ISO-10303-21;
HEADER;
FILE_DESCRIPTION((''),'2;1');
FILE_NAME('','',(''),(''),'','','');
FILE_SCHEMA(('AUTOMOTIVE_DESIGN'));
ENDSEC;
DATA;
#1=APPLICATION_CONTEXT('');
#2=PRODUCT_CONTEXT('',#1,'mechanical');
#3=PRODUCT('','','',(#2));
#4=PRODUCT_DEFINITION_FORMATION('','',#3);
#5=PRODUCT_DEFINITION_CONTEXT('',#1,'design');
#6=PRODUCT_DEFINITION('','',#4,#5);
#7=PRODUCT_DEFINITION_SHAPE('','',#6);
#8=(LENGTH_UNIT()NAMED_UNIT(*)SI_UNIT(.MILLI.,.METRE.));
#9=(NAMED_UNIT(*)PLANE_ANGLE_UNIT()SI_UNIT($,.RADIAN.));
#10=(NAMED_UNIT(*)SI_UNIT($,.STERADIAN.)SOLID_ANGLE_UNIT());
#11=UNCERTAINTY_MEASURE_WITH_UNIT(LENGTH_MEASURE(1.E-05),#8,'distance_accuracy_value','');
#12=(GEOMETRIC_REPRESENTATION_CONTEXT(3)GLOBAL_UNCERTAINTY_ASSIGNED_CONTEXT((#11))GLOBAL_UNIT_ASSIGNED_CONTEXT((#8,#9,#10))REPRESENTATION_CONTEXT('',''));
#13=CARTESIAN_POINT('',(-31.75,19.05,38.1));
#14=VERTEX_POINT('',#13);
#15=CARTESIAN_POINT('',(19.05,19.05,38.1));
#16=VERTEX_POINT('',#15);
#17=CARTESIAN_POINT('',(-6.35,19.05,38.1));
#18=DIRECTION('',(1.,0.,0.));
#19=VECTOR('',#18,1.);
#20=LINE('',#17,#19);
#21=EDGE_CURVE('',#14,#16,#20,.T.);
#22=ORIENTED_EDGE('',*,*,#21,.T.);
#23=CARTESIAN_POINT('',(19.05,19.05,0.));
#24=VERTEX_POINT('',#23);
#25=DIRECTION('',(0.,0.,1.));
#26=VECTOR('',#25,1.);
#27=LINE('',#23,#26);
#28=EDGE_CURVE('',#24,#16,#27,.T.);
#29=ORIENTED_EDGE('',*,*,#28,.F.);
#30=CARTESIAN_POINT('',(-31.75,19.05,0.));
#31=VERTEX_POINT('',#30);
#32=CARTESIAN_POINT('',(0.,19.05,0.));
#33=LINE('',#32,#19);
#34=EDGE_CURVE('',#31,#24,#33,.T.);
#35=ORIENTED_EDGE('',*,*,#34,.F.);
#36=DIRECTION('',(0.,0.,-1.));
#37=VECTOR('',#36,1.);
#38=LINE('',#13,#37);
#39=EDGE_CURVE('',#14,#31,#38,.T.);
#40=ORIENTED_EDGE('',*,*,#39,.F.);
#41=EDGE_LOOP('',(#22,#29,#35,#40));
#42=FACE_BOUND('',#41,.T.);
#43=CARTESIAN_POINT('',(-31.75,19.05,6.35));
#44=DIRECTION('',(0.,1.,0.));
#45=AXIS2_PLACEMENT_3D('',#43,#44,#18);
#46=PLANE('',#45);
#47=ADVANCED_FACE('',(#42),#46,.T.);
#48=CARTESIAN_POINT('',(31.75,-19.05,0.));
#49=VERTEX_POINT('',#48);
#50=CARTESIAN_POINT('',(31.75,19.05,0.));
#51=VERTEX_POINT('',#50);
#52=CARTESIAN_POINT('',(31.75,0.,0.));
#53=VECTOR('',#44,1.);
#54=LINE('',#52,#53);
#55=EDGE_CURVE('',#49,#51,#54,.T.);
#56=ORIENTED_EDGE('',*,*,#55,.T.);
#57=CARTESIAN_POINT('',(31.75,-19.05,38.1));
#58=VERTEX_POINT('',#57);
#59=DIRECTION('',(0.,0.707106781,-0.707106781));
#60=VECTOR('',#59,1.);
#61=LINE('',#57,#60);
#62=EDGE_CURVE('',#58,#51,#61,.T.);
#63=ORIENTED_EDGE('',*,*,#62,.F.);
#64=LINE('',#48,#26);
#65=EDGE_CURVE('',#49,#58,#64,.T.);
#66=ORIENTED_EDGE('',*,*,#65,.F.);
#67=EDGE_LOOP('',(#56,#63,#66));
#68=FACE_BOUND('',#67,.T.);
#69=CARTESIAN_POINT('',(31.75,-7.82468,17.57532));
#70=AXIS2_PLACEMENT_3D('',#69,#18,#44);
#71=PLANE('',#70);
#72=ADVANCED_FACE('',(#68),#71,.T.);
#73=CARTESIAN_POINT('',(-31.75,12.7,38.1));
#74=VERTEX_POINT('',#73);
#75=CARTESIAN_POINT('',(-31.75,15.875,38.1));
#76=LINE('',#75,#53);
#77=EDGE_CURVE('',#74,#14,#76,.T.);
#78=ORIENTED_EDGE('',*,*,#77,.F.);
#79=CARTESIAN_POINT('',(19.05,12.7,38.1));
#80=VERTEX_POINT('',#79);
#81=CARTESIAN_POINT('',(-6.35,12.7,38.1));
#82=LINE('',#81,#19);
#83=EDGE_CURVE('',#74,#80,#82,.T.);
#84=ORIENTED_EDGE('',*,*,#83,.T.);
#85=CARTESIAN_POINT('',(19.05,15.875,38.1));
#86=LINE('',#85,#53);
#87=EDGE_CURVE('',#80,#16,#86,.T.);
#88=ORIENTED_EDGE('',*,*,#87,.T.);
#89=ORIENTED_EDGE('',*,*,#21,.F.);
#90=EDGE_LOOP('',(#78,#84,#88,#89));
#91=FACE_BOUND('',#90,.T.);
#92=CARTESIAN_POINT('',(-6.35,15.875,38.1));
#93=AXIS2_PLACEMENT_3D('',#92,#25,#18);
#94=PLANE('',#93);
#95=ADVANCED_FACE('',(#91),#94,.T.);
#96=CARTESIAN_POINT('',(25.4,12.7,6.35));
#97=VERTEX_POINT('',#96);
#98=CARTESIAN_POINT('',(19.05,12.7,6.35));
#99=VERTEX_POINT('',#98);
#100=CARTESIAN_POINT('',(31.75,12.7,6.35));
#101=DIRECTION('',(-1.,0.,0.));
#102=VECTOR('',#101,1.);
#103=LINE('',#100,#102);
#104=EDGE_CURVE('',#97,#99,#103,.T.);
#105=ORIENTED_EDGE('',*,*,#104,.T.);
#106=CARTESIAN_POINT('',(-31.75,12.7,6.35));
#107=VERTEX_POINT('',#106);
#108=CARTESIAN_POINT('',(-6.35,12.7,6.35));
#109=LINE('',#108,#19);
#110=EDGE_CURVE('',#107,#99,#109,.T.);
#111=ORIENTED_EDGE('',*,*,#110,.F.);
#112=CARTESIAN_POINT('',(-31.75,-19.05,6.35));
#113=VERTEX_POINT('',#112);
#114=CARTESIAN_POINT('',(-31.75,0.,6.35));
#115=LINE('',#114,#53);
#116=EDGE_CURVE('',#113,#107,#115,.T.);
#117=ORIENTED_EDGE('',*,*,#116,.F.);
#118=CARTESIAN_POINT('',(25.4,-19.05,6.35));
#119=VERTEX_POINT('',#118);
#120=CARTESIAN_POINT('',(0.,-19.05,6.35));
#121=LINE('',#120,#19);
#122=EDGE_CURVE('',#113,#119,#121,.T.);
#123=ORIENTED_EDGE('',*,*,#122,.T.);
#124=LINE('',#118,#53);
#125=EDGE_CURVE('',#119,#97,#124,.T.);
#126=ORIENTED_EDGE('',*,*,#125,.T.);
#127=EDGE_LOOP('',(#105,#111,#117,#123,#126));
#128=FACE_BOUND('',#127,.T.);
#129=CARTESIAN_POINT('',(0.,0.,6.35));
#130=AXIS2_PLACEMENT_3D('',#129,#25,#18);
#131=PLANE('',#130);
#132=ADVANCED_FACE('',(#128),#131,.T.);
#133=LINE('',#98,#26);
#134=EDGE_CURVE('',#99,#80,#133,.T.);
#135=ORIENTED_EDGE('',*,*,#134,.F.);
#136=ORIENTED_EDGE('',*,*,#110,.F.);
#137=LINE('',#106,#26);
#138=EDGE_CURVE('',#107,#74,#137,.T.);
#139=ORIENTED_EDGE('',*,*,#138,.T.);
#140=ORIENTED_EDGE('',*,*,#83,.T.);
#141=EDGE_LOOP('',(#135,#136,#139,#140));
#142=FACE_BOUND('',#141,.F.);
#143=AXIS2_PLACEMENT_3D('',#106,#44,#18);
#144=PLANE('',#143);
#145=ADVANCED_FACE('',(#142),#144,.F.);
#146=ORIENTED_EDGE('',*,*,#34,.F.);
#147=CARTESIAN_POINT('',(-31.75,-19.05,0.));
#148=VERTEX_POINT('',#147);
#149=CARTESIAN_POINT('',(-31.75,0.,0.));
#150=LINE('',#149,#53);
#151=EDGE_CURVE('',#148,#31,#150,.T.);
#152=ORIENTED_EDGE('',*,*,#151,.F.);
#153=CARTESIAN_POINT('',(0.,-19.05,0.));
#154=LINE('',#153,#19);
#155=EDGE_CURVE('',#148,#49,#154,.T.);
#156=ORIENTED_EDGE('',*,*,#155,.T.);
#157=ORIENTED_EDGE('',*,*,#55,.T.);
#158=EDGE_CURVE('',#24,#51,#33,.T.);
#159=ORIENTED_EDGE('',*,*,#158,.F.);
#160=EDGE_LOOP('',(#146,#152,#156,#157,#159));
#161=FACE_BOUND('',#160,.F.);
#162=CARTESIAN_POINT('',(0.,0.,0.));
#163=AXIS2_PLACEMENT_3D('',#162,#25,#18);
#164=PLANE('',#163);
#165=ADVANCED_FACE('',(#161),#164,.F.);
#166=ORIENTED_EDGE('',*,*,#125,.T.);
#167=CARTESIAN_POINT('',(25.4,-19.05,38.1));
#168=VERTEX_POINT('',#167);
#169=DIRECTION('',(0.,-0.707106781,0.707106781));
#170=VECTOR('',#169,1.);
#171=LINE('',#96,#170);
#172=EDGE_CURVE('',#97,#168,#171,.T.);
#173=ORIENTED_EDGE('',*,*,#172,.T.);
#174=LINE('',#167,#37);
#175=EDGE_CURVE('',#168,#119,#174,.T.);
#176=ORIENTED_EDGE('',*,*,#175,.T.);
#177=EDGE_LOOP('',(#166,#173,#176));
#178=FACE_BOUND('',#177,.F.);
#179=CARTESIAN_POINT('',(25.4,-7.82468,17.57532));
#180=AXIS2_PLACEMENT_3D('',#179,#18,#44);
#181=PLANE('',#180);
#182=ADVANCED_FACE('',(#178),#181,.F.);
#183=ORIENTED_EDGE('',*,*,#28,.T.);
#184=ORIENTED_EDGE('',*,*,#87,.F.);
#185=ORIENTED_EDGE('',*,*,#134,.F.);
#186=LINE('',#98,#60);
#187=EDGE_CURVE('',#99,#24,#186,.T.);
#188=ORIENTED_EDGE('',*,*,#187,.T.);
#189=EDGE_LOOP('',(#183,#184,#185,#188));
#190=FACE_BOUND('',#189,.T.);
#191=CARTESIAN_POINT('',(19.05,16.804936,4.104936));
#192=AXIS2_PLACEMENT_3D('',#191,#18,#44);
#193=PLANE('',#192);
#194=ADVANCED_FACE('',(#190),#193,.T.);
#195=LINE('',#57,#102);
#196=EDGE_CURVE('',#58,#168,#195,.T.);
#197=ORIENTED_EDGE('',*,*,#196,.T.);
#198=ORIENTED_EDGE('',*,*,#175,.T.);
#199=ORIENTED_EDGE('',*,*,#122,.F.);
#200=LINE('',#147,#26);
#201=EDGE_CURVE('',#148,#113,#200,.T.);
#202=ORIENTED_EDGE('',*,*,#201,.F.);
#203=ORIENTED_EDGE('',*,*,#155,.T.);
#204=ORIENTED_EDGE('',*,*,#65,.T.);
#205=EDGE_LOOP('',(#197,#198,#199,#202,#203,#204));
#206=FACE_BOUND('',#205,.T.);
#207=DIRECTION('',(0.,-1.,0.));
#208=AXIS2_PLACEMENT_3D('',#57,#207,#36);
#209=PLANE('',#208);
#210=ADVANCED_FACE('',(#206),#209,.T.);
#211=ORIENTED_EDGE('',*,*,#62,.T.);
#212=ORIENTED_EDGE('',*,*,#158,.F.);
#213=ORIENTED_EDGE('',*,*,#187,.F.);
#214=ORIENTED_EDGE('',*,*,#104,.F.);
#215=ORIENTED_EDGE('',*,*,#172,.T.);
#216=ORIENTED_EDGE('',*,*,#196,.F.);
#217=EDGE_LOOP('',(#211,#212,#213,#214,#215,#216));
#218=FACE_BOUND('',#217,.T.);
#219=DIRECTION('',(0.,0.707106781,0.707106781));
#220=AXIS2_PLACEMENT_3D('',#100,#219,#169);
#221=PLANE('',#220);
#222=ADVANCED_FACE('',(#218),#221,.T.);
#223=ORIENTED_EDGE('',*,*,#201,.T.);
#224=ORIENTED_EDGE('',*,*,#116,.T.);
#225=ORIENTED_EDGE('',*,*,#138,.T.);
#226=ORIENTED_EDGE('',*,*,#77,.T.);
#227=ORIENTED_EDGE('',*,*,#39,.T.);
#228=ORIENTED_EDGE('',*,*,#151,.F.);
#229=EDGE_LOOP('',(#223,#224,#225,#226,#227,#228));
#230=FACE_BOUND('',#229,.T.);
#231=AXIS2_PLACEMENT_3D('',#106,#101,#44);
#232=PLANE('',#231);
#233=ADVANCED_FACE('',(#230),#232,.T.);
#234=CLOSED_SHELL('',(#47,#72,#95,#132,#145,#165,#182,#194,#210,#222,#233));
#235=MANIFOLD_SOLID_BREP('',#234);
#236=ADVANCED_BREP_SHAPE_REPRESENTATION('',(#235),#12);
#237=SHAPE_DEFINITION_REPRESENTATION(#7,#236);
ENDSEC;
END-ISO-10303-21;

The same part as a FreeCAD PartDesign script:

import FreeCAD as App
import Part
import Sketcher

V = App.Vector
Q = App.Units.Quantity

doc = App.newDocument("Part")
body = doc.addObject("PartDesign::Body", "Body")

sketch1 = body.newObject("Sketcher::SketchObject", "Sketch")
sketch1.AttachmentSupport = (doc.getObject("XY_Plane"), [""])
sketch1.MapMode = "FlatFace"
sketch1.addGeometry([
    Part.LineSegment(V(-31.75, 19.05, 0), V(-31.75, -19.05, 0)),
    Part.LineSegment(V(-31.75, -19.05, 0), V(31.75, -19.05, 0)),
    Part.LineSegment(V(31.75, -19.05, 0), V(31.75, 19.05, 0)),
    Part.LineSegment(V(31.75, 19.05, 0), V(-31.75, 19.05, 0)),
], False)
sketch1.addConstraint([
    Sketcher.Constraint("Coincident", 0, 2, 1, 1),
    Sketcher.Constraint("Coincident", 1, 2, 2, 1),
    Sketcher.Constraint("Coincident", 2, 2, 3, 1),
    Sketcher.Constraint("Coincident", 3, 2, 0, 1),
    Sketcher.Constraint("Vertical", 0),
    Sketcher.Constraint("Horizontal", 1),
    Sketcher.Constraint("Vertical", 2),
    Sketcher.Constraint("Horizontal", 3),
    Sketcher.Constraint("Symmetric", 0, 2, 2, 2, -1, 1),
    Sketcher.Constraint("DistanceX", 1, 1, 1, 2, Q("2.5 in")),
    Sketcher.Constraint("DistanceY", 0, 2, 0, 1, Q("1.5 in")),
])
pad1 = body.newObject("PartDesign::Pad", "Pad")
pad1.Profile = sketch1
pad1.Length = Q("0.25 in")

sketch2 = body.newObject("Sketcher::SketchObject", "Sketch001")
sketch2.AttachmentSupport = (doc.getObject("XY_Plane"), [""])
sketch2.MapMode = "FlatFace"
sketch2.AttachmentOffset = App.Placement(V(0, 0, 0.25 * 25.4), App.Rotation())
sketch2.addGeometry([
    Part.LineSegment(V(-31.75, 19.05, 0), V(-31.75, 12.7, 0)),
    Part.LineSegment(V(-31.75, 12.7, 0), V(19.05, 12.7, 0)),
    Part.LineSegment(V(19.05, 12.7, 0), V(19.05, 19.05, 0)),
    Part.LineSegment(V(19.05, 19.05, 0), V(-31.75, 19.05, 0)),
], False)
sketch2.addConstraint([
    Sketcher.Constraint("Coincident", 0, 2, 1, 1),
    Sketcher.Constraint("Coincident", 1, 2, 2, 1),
    Sketcher.Constraint("Coincident", 2, 2, 3, 1),
    Sketcher.Constraint("Coincident", 3, 2, 0, 1),
    Sketcher.Constraint("Vertical", 0),
    Sketcher.Constraint("Horizontal", 1),
    Sketcher.Constraint("Vertical", 2),
    Sketcher.Constraint("Horizontal", 3),
    Sketcher.Constraint("DistanceX", 1, 1, 1, 2, Q("2 in")),
    Sketcher.Constraint("DistanceY", 0, 2, 0, 1, Q("0.25 in")),
    Sketcher.Constraint("DistanceY", -1, 1, 0, 2, Q("0.5 in")),
    Sketcher.Constraint("DistanceX", 0, 2, -1, 1, Q("1.25 in")),
])
pad2 = body.newObject("PartDesign::Pad", "Pad001")
pad2.Profile = sketch2
pad2.Length = Q("1.25 in")

sketch3 = body.newObject("Sketcher::SketchObject", "Sketch002")
sketch3.AttachmentSupport = (doc.getObject("YZ_Plane"), [""])
sketch3.MapMode = "FlatFace"
sketch3.AttachmentOffset = App.Placement(V(0, 0, 1.25 * 25.4), App.Rotation())
sketch3.addGeometry([
    Part.LineSegment(V(-19.05, 6.35, 0), V(12.7, 6.35, 0)),
    Part.LineSegment(V(12.7, 6.35, 0), V(-19.05, 38.1, 0)),
    Part.LineSegment(V(-19.05, 38.1, 0), V(-19.05, 6.35, 0)),
], False)
sketch3.addConstraint([
    Sketcher.Constraint("Coincident", 0, 2, 1, 1),
    Sketcher.Constraint("Coincident", 1, 2, 2, 1),
    Sketcher.Constraint("Coincident", 2, 2, 0, 1),
    Sketcher.Constraint("Horizontal", 0),
    Sketcher.Constraint("Vertical", 2),
    Sketcher.Constraint("Equal", 0, 2),
    Sketcher.Constraint("DistanceX", 0, 1, 0, 2, Q("1.25 in")),
    Sketcher.Constraint("DistanceX", -1, 1, 0, 2, Q("0.5 in")),
    Sketcher.Constraint("DistanceY", -1, 1, 1, 2, Q("1.5 in")),
])
pad3 = body.newObject("PartDesign::Pad", "Pad002")
pad3.Profile = sketch3
pad3.Length = Q("0.25 in")
pad3.Reversed = True

sketch4 = body.newObject("Sketcher::SketchObject", "Sketch003")
sketch4.AttachmentSupport = (doc.getObject("YZ_Plane"), [""])
sketch4.MapMode = "FlatFace"
sketch4.AttachmentOffset = App.Placement(V(0, 0, 1.25 * 25.4), App.Rotation())
sketch4.addGeometry([
    Part.LineSegment(V(19.05, 6.35, 0), V(12.7, 6.35, 0)),
    Part.LineSegment(V(12.7, 6.35, 0), V(19.05, 0, 0)),
    Part.LineSegment(V(19.05, 0, 0), V(19.05, 6.35, 0)),
], False)
sketch4.addConstraint([
    Sketcher.Constraint("Coincident", 0, 2, 1, 1),
    Sketcher.Constraint("Coincident", 1, 2, 2, 1),
    Sketcher.Constraint("Coincident", 2, 2, 0, 1),
    Sketcher.Constraint("Horizontal", 0),
    Sketcher.Constraint("Vertical", 2),
    Sketcher.Constraint("PointOnObject", 1, 2, -1),
    Sketcher.Constraint("Equal", 0, 2),
    Sketcher.Constraint("DistanceX", 0, 2, 0, 1, Q("0.25 in")),
    Sketcher.Constraint("DistanceX", -1, 1, 0, 2, Q("0.5 in")),
])
pocket1 = body.newObject("PartDesign::Pocket", "Pocket")
pocket1.Profile = sketch4
pocket1.Length = Q("0.5 in")

doc.recompute()
